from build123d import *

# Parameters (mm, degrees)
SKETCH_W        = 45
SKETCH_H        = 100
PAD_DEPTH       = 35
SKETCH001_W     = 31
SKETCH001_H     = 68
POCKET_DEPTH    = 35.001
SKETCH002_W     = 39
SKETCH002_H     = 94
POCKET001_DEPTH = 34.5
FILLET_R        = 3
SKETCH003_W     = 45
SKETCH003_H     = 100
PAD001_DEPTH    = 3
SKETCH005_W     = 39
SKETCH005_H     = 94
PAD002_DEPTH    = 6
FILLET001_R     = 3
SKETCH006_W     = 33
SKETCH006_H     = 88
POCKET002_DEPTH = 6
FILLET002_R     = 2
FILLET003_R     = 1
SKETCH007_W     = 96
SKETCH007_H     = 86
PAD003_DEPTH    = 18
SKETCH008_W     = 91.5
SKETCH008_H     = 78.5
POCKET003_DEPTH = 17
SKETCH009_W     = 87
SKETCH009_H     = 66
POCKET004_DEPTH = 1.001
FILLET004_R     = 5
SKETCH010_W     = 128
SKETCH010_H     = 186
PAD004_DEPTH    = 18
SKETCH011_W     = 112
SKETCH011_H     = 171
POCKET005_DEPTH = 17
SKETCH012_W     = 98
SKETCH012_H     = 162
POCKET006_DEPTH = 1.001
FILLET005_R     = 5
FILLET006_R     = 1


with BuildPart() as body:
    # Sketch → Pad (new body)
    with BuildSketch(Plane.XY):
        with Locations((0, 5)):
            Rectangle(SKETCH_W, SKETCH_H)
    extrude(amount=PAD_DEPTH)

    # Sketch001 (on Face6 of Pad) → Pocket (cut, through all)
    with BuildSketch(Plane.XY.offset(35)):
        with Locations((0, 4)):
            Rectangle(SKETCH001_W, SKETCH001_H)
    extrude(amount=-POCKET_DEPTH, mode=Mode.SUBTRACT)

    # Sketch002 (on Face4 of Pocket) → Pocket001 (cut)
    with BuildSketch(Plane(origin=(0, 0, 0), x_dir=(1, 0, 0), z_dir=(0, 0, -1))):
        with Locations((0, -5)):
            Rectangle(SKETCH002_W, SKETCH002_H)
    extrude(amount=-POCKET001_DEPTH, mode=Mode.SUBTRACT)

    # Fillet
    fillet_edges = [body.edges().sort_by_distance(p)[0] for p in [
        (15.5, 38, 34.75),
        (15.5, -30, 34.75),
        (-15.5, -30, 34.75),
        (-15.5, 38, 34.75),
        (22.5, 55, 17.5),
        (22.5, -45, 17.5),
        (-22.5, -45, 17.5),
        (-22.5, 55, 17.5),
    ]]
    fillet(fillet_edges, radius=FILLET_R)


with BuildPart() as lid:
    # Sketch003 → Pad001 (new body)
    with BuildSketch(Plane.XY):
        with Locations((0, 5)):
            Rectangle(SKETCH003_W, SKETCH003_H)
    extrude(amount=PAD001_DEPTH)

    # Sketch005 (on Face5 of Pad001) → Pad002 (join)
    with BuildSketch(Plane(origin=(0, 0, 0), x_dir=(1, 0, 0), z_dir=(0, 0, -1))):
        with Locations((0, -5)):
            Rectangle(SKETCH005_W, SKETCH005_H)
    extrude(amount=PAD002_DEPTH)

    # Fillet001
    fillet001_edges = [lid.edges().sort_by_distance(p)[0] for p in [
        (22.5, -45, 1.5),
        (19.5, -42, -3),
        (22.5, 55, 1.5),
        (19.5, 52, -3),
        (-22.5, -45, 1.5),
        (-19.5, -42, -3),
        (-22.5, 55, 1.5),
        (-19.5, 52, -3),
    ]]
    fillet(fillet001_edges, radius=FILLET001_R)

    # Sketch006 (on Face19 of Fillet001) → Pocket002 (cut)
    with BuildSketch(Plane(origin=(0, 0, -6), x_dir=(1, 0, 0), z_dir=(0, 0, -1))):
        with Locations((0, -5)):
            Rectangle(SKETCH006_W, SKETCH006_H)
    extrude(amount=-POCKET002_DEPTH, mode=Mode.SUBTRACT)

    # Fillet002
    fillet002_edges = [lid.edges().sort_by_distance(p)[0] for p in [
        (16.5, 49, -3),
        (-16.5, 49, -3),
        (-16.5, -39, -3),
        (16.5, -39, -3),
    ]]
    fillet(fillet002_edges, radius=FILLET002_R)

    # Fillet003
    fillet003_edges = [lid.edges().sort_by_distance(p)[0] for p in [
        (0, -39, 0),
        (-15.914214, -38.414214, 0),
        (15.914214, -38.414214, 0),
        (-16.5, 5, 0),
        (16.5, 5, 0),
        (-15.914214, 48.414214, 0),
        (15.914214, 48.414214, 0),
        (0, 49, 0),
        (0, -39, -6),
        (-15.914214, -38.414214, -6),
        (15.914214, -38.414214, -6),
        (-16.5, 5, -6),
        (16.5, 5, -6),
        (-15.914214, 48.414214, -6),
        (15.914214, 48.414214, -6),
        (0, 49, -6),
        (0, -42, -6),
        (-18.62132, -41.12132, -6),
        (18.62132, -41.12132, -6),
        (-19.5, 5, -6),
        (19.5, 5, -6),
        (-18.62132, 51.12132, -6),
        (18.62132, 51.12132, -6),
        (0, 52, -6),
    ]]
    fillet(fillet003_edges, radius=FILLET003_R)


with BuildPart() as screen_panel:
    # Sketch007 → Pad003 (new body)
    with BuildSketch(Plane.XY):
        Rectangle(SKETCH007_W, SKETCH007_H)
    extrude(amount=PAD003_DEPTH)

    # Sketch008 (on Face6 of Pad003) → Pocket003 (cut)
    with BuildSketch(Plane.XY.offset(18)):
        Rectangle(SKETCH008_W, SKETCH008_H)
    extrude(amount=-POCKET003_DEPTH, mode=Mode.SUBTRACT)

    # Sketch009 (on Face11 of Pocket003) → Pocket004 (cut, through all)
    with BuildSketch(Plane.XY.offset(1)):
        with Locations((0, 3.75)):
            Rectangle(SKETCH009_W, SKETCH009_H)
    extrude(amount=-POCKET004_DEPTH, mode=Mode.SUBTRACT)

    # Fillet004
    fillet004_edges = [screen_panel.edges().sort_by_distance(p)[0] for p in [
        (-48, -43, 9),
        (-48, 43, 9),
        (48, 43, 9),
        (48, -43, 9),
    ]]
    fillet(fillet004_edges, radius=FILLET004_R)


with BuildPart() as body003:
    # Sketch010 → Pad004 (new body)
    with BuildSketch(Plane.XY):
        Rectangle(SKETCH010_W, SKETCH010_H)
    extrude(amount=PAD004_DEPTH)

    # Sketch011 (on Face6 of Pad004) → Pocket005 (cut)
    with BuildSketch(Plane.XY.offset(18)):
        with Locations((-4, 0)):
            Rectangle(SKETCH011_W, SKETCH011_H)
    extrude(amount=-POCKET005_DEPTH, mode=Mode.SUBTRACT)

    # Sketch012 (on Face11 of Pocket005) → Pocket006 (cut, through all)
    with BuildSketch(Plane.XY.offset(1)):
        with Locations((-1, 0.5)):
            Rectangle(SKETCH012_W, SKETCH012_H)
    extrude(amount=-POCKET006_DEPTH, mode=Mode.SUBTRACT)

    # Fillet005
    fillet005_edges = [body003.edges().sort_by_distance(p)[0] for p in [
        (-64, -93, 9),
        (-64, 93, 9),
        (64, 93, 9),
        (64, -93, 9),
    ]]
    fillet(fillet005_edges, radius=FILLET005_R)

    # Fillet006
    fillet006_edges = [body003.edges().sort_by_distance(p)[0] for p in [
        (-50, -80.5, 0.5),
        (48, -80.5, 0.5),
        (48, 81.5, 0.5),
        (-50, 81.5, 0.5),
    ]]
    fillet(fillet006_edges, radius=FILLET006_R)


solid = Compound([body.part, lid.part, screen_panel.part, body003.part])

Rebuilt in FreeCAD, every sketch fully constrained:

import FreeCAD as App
import Part
import Sketcher
from FreeCAD import Vector
Q = App.Units.Quantity


def edges_at(feature, points):
    """Names of the edges that pass closest to the given points."""
    edges = feature.Shape.Edges
    near = lambda p: min(range(len(edges)), key=lambda i: edges[i].distToShape(Part.Vertex(*p))[0])
    return sorted({f"Edge{near(p) + 1}" for p in points})


def add_polygon(sketch, points):
    """Adds a closed chain of lines whose ends are joined by coincident constraints."""
    first, n = sketch.GeometryCount, len(points)
    for a, b in zip(points, points[1:] + points[:1]):
        sketch.addGeometry(Part.LineSegment(App.Vector(*a, 0), App.Vector(*b, 0)), False)
    for i in range(n):
        sketch.addConstraint(Sketcher.Constraint("Coincident", first + i, 2, first + (i + 1) % n, 1))

doc = App.newDocument("Part")
params = doc.addObject("Spreadsheet::Sheet", "Params")
for row, (alias, value) in enumerate([
    ("sketch1_width", "45 mm"),
    ("sketch1_height", "100 mm"),
    ("pad1_length", "35 mm"),
    ("sketch2_width", "31 mm"),
    ("sketch2_height", "68 mm"),
    ("sketch3_width", "39 mm"),
    ("sketch3_height", "94 mm"),
    ("pocket2_length", "34.5 mm"),
    ("fillet_radius", "3 mm"),
    ("sketch4_width", "45 mm"),
    ("sketch4_height", "100 mm"),
    ("pad2_length", "3 mm"),
    ("sketch5_width", "39 mm"),
    ("sketch5_height", "94 mm"),
    ("pad3_length", "6 mm"),
    ("fillet2_radius", "3 mm"),
    ("sketch6_width", "33 mm"),
    ("sketch6_height", "88 mm"),
    ("pocket3_length", "6 mm"),
    ("fillet3_radius", "2 mm"),
    ("fillet4_radius", "1 mm"),
    ("sketch7_width", "96 mm"),
    ("sketch7_height", "86 mm"),
    ("pad4_length", "18 mm"),
    ("sketch8_width", "91.5 mm"),
    ("sketch8_height", "78.5 mm"),
    ("pocket4_length", "17 mm"),
    ("sketch9_width", "87 mm"),
    ("sketch9_height", "66 mm"),
    ("fillet5_radius", "5 mm"),
    ("sketch10_width", "128 mm"),
    ("sketch10_height", "186 mm"),
    ("pad5_length", "18 mm"),
    ("sketch11_width", "112 mm"),
    ("sketch11_height", "171 mm"),
    ("pocket6_length", "17 mm"),
    ("sketch12_width", "98 mm"),
    ("sketch12_height", "162 mm"),
    ("fillet6_radius", "5 mm"),
    ("fillet7_radius", "1 mm"),
], start=1):
    params.set(f"A{row}", alias)
    params.set(f"B{row}", "=" + value)
    params.setAlias(f"B{row}", alias)

body = doc.addObject("PartDesign::Body", "Body")

sketch1 = body.newObject("Sketcher::SketchObject", "Sketch")
sketch1.AttachmentSupport = (doc.getObject("XY_Plane"), [""])
sketch1.MapMode = "FlatFace"
add_polygon(sketch1, [(-22, 55), (-22, -45), (22, -45), (22, 55)])
sketch1.addConstraint(Sketcher.Constraint("Vertical", 0))
sketch1.addConstraint(Sketcher.Constraint("Horizontal", 1))
sketch1.addConstraint(Sketcher.Constraint("Vertical", 2))
sketch1.addConstraint(Sketcher.Constraint("Horizontal", 3))
sketch1.addConstraint(Sketcher.Constraint("DistanceX", 1, 1, 1, 2, Q("45 mm")))
sketch1.addConstraint(Sketcher.Constraint("DistanceY", 0, 2, 0, 1, Q("100 mm")))
sketch1.addConstraint(Sketcher.Constraint("DistanceY", 0, 2, -1, 1, Q("45 mm")))
sketch1.addConstraint(Sketcher.Constraint("DistanceX", 0, 2, -1, 1, Q("22.5 mm")))
sketch1.setExpression("Constraints[8]", "Params.sketch1_width")
sketch1.setExpression("Constraints[9]", "Params.sketch1_height")
pad1 = body.newObject("PartDesign::Pad", "Pad")
pad1.Profile = sketch1
pad1.setExpression("Length", "Params.pad1_length")

sketch2 = body.newObject("Sketcher::SketchObject", "Sketch001")
sketch2.AttachmentSupport = (doc.getObject("XY_Plane"), [""])
sketch2.MapMode = "FlatFace"
sketch2.AttachmentOffset = App.Placement(Vector(0, 0, 35), App.Rotation())
add_polygon(sketch2, [(-16, 38), (-16, -30), (16, -30), (16, 38)])
sketch2.addConstraint(Sketcher.Constraint("Vertical", 0))
sketch2.addConstraint(Sketcher.Constraint("Horizontal", 1))
sketch2.addConstraint(Sketcher.Constraint("Vertical", 2))
sketch2.addConstraint(Sketcher.Constraint("Horizontal", 3))
sketch2.addConstraint(Sketcher.Constraint("DistanceX", 1, 1, 1, 2, Q("31 mm")))
sketch2.addConstraint(Sketcher.Constraint("DistanceY", 0, 2, 0, 1, Q("68 mm")))
sketch2.addConstraint(Sketcher.Constraint("DistanceY", 0, 2, -1, 1, Q("30 mm")))
sketch2.addConstraint(Sketcher.Constraint("DistanceX", 0, 2, -1, 1, Q("15.5 mm")))
sketch2.setExpression("Constraints[8]", "Params.sketch2_width")
sketch2.setExpression("Constraints[9]", "Params.sketch2_height")
pocket1 = body.newObject("PartDesign::Pocket", "Pocket")
pocket1.Profile = sketch2
pocket1.Type = "ThroughAll"

sketch3 = body.newObject("Sketcher::SketchObject", "Sketch002")
sketch3.AttachmentSupport = (doc.getObject("XY_Plane"), [""])
sketch3.MapMode = "FlatFace"
add_polygon(sketch3, [(-20, -42), (-20, 52), (20, 52), (20, -42)])
sketch3.addConstraint(Sketcher.Constraint("Vertical", 0))
sketch3.addConstraint(Sketcher.Constraint("Horizontal", 1))
sketch3.addConstraint(Sketcher.Constraint("Vertical", 2))
sketch3.addConstraint(Sketcher.Constraint("Horizontal", 3))
sketch3.addConstraint(Sketcher.Constraint("DistanceX", 1, 1, 1, 2, Q("39 mm")))
sketch3.addConstraint(Sketcher.Constraint("DistanceY", 0, 1, 0, 2, Q("94 mm")))
sketch3.addConstraint(Sketcher.Constraint("DistanceY", -1, 1, 0, 2, Q("52 mm")))
sketch3.addConstraint(Sketcher.Constraint("DistanceX", 0, 2, -1, 1, Q("19.5 mm")))
sketch3.setExpression("Constraints[8]", "Params.sketch3_width")
sketch3.setExpression("Constraints[9]", "Params.sketch3_height")
pocket2 = body.newObject("PartDesign::Pocket", "Pocket001")
pocket2.Profile = sketch3
pocket2.setExpression("Length", "Params.pocket2_length")
pocket2.Reversed = True
doc.recompute()

fillet = body.newObject("PartDesign::Fillet", "Fillet")
fillet.Base = (pocket2, edges_at(pocket2, [
    (15.5, 38, 34.75),
    (15.5, -30, 34.75),
    (-15.5, -30, 34.75),
    (-15.5, 38, 34.75),
    (22.5, 55, 17.5),
    (22.5, -45, 17.5),
    (-22.5, -45, 17.5),
    (-22.5, 55, 17.5),
]))
fillet.setExpression("Radius", "Params.fillet_radius")
body2 = doc.addObject("PartDesign::Body", "Body001")

sketch4 = body2.newObject("Sketcher::SketchObject", "Sketch003")
sketch4.AttachmentSupport = (doc.getObject("XY_Plane001"), [""])
sketch4.MapMode = "FlatFace"
add_polygon(sketch4, [(-22, 55), (-22, -45), (22, -45), (22, 55)])
sketch4.addConstraint(Sketcher.Constraint("Vertical", 0))
sketch4.addConstraint(Sketcher.Constraint("Horizontal", 1))
sketch4.addConstraint(Sketcher.Constraint("Vertical", 2))
sketch4.addConstraint(Sketcher.Constraint("Horizontal", 3))
sketch4.addConstraint(Sketcher.Constraint("DistanceX", 1, 1, 1, 2, Q("45 mm")))
sketch4.addConstraint(Sketcher.Constraint("DistanceY", 0, 2, 0, 1, Q("100 mm")))
sketch4.addConstraint(Sketcher.Constraint("DistanceY", 0, 2, -1, 1, Q("45 mm")))
sketch4.addConstraint(Sketcher.Constraint("DistanceX", 0, 2, -1, 1, Q("22.5 mm")))
sketch4.setExpression("Constraints[8]", "Params.sketch4_width")
sketch4.setExpression("Constraints[9]", "Params.sketch4_height")
pad2 = body2.newObject("PartDesign::Pad", "Pad001")
pad2.Profile = sketch4
pad2.setExpression("Length", "Params.pad2_length")

sketch5 = body2.newObject("Sketcher::SketchObject", "Sketch004")
sketch5.AttachmentSupport = (doc.getObject("XY_Plane001"), [""])
sketch5.MapMode = "FlatFace"
add_polygon(sketch5, [(-20, -42), (-20, 52), (20, 52), (20, -42)])
sketch5.addConstraint(Sketcher.Constraint("Vertical", 0))
sketch5.addConstraint(Sketcher.Constraint("Horizontal", 1))
sketch5.addConstraint(Sketcher.Constraint("Vertical", 2))
sketch5.addConstraint(Sketcher.Constraint("Horizontal", 3))
sketch5.addConstraint(Sketcher.Constraint("DistanceX", 1, 1, 1, 2, Q("39 mm")))
sketch5.addConstraint(Sketcher.Constraint("DistanceY", 0, 1, 0, 2, Q("94 mm")))
sketch5.addConstraint(Sketcher.Constraint("DistanceY", -1, 1, 0, 2, Q("52 mm")))
sketch5.addConstraint(Sketcher.Constraint("DistanceX", 0, 2, -1, 1, Q("19.5 mm")))
sketch5.setExpression("Constraints[8]", "Params.sketch5_width")
sketch5.setExpression("Constraints[9]", "Params.sketch5_height")
pad3 = body2.newObject("PartDesign::Pad", "Pad002")
pad3.Profile = sketch5
pad3.setExpression("Length", "Params.pad3_length")
pad3.Reversed = True
doc.recompute()

fillet2 = body2.newObject("PartDesign::Fillet", "Fillet001")
fillet2.Base = (pad3, edges_at(pad3, [
    (22.5, -45, 1.5),
    (19.5, -42, -3),
    (22.5, 55, 1.5),
    (19.5, 52, -3),
    (-22.5, -45, 1.5),
    (-19.5, -42, -3),
    (-22.5, 55, 1.5),
    (-19.5, 52, -3),
]))
fillet2.setExpression("Radius", "Params.fillet2_radius")

sketch6 = body2.newObject("Sketcher::SketchObject", "Sketch005")
sketch6.AttachmentSupport = (doc.getObject("XY_Plane001"), [""])
sketch6.MapMode = "FlatFace"
sketch6.AttachmentOffset = App.Placement(Vector(0, 0, -6), App.Rotation())
add_polygon(sketch6, [(-16, -39), (-16, 49), (16, 49), (16, -39)])
sketch6.addConstraint(Sketcher.Constraint("Vertical", 0))
sketch6.addConstraint(Sketcher.Constraint("Horizontal", 1))
sketch6.addConstraint(Sketcher.Constraint("Vertical", 2))
sketch6.addConstraint(Sketcher.Constraint("Horizontal", 3))
sketch6.addConstraint(Sketcher.Constraint("DistanceX", 1, 1, 1, 2, Q("33 mm")))
sketch6.addConstraint(Sketcher.Constraint("DistanceY", 0, 1, 0, 2, Q("88 mm")))
sketch6.addConstraint(Sketcher.Constraint("DistanceY", -1, 1, 0, 2, Q("49 mm")))
sketch6.addConstraint(Sketcher.Constraint("DistanceX", 0, 2, -1, 1, Q("16.5 mm")))
sketch6.setExpression("Constraints[8]", "Params.sketch6_width")
sketch6.setExpression("Constraints[9]", "Params.sketch6_height")
pocket3 = body2.newObject("PartDesign::Pocket", "Pocket002")
pocket3.Profile = sketch6
pocket3.setExpression("Length", "Params.pocket3_length")
pocket3.Reversed = True
doc.recompute()

fillet3 = body2.newObject("PartDesign::Fillet", "Fillet002")
fillet3.Base = (pocket3, edges_at(pocket3, [
    (16.5, 49, -3),
    (-16.5, 49, -3),
    (-16.5, -39, -3),
    (16.5, -39, -3),
]))
fillet3.setExpression("Radius", "Params.fillet3_radius")
doc.recompute()

fillet4 = body2.newObject("PartDesign::Fillet", "Fillet003")
fillet4.Base = (fillet3, edges_at(fillet3, [
    (0, -39, 0),
    (-15.914, -38.414, 0),
    (15.914, -38.414, 0),
    (-16.5, 5, 0),
    (16.5, 5, 0),
    (-15.914, 48.414, 0),
    (15.914, 48.414, 0),
    (0, 49, 0),
    (0, -39, -6),
    (-15.914, -38.414, -6),
    (15.914, -38.414, -6),
    (-16.5, 5, -6),
    (16.5, 5, -6),
    (-15.914, 48.414, -6),
    (15.914, 48.414, -6),
    (0, 49, -6),
    (0, -42, -6),
    (-18.621, -41.121, -6),
    (18.621, -41.121, -6),
    (-19.5, 5, -6),
    (19.5, 5, -6),
    (-18.621, 51.121, -6),
    (18.621, 51.121, -6),
    (0, 52, -6),
]))
fillet4.setExpression("Radius", "Params.fillet4_radius")
body3 = doc.addObject("PartDesign::Body", "Body002")

sketch7 = body3.newObject("Sketcher::SketchObject", "Sketch006")
sketch7.AttachmentSupport = (doc.getObject("XY_Plane002"), [""])
sketch7.MapMode = "FlatFace"
add_polygon(sketch7, [(-48, 43), (-48, -43), (48, -43), (48, 43)])
sketch7.addConstraint(Sketcher.Constraint("Vertical", 0))
sketch7.addConstraint(Sketcher.Constraint("Horizontal", 1))
sketch7.addConstraint(Sketcher.Constraint("Vertical", 2))
sketch7.addConstraint(Sketcher.Constraint("Horizontal", 3))
sketch7.addConstraint(Sketcher.Constraint("Symmetric", 0, 2, 2, 2, -1, 1))
sketch7.addConstraint(Sketcher.Constraint("DistanceX", 1, 1, 1, 2, Q("96 mm")))
sketch7.addConstraint(Sketcher.Constraint("DistanceY", 0, 2, 0, 1, Q("86 mm")))
sketch7.setExpression("Constraints[9]", "Params.sketch7_width")
sketch7.setExpression("Constraints[10]", "Params.sketch7_height")
pad4 = body3.newObject("PartDesign::Pad", "Pad003")
pad4.Profile = sketch7
pad4.setExpression("Length", "Params.pad4_length")

sketch8 = body3.newObject("Sketcher::SketchObject", "Sketch007")
sketch8.AttachmentSupport = (doc.getObject("XY_Plane002"), [""])
sketch8.MapMode = "FlatFace"
sketch8.AttachmentOffset = App.Placement(Vector(0, 0, 18), App.Rotation())
add_polygon(sketch8, [(-46, 39), (-46, -39), (46, -39), (46, 39)])
sketch8.addConstraint(Sketcher.Constraint("Vertical", 0))
sketch8.addConstraint(Sketcher.Constraint("Horizontal", 1))
sketch8.addConstraint(Sketcher.Constraint("Vertical", 2))
sketch8.addConstraint(Sketcher.Constraint("Horizontal", 3))
sketch8.addConstraint(Sketcher.Constraint("Symmetric", 0, 2, 2, 2, -1, 1))
sketch8.addConstraint(Sketcher.Constraint("DistanceX", 1, 1, 1, 2, Q("91.5 mm")))
sketch8.addConstraint(Sketcher.Constraint("DistanceY", 0, 2, 0, 1, Q("78.5 mm")))
sketch8.setExpression("Constraints[9]", "Params.sketch8_width")
sketch8.setExpression("Constraints[10]", "Params.sketch8_height")
pocket4 = body3.newObject("PartDesign::Pocket", "Pocket003")
pocket4.Profile = sketch8
pocket4.setExpression("Length", "Params.pocket4_length")

sketch9 = body3.newObject("Sketcher::SketchObject", "Sketch008")
sketch9.AttachmentSupport = (doc.getObject("XY_Plane002"), [""])
sketch9.MapMode = "FlatFace"
sketch9.AttachmentOffset = App.Placement(Vector(0, 0, 1), App.Rotation())
add_polygon(sketch9, [(-44, 37), (-44, -29), (44, -29), (44, 37)])
sketch9.addConstraint(Sketcher.Constraint("Vertical", 0))
sketch9.addConstraint(Sketcher.Constraint("Horizontal", 1))
sketch9.addConstraint(Sketcher.Constraint("Vertical", 2))
sketch9.addConstraint(Sketcher.Constraint("Horizontal", 3))
sketch9.addConstraint(Sketcher.Constraint("DistanceX", 1, 1, 1, 2, Q("87 mm")))
sketch9.addConstraint(Sketcher.Constraint("DistanceY", 0, 2, 0, 1, Q("66 mm")))
sketch9.addConstraint(Sketcher.Constraint("DistanceX", 0, 2, -1, 1, Q("43.5 mm")))
sketch9.addConstraint(Sketcher.Constraint("DistanceY", 0, 2, -1, 1, Q("29.25 mm")))
sketch9.setExpression("Constraints[8]", "Params.sketch9_width")
sketch9.setExpression("Constraints[9]", "Params.sketch9_height")
pocket5 = body3.newObject("PartDesign::Pocket", "Pocket004")
pocket5.Profile = sketch9
pocket5.Type = "ThroughAll"
doc.recompute()

fillet5 = body3.newObject("PartDesign::Fillet", "Fillet004")
fillet5.Base = (pocket5, edges_at(pocket5, [
    (-48, -43, 9),
    (-48, 43, 9),
    (48, 43, 9),
    (48, -43, 9),
]))
fillet5.setExpression("Radius", "Params.fillet5_radius")
body4 = doc.addObject("PartDesign::Body", "Body003")

sketch10 = body4.newObject("Sketcher::SketchObject", "Sketch009")
sketch10.AttachmentSupport = (doc.getObject("XY_Plane003"), [""])
sketch10.MapMode = "FlatFace"
add_polygon(sketch10, [(-64, 93), (-64, -93), (64, -93), (64, 93)])
sketch10.addConstraint(Sketcher.Constraint("Vertical", 0))
sketch10.addConstraint(Sketcher.Constraint("Horizontal", 1))
sketch10.addConstraint(Sketcher.Constraint("Vertical", 2))
sketch10.addConstraint(Sketcher.Constraint("Horizontal", 3))
sketch10.addConstraint(Sketcher.Constraint("Symmetric", 0, 2, 2, 2, -1, 1))
sketch10.addConstraint(Sketcher.Constraint("DistanceX", 1, 1, 1, 2, Q("128 mm")))
sketch10.addConstraint(Sketcher.Constraint("DistanceY", 0, 2, 0, 1, Q("186 mm")))
sketch10.setExpression("Constraints[9]", "Params.sketch10_width")
sketch10.setExpression("Constraints[10]", "Params.sketch10_height")
pad5 = body4.newObject("PartDesign::Pad", "Pad004")
pad5.Profile = sketch10
pad5.setExpression("Length", "Params.pad5_length")

sketch11 = body4.newObject("Sketcher::SketchObject", "Sketch010")
sketch11.AttachmentSupport = (doc.getObject("XY_Plane003"), [""])
sketch11.MapMode = "FlatFace"
sketch11.AttachmentOffset = App.Placement(Vector(0, 0, 18), App.Rotation())
add_polygon(sketch11, [(-60, 86), (-60, -86), (52, -86), (52, 86)])
sketch11.addConstraint(Sketcher.Constraint("Vertical", 0))
sketch11.addConstraint(Sketcher.Constraint("Horizontal", 1))
sketch11.addConstraint(Sketcher.Constraint("Vertical", 2))
sketch11.addConstraint(Sketcher.Constraint("Horizontal", 3))
sketch11.addConstraint(Sketcher.Constraint("DistanceX", 1, 1, 1, 2, Q("112 mm")))
sketch11.addConstraint(Sketcher.Constraint("DistanceY", 0, 2, 0, 1, Q("171 mm")))
sketch11.addConstraint(Sketcher.Constraint("DistanceX", 0, 2, -1, 1, Q("60 mm")))
sketch11.addConstraint(Sketcher.Constraint("DistanceY", 0, 2, -1, 1, Q("85.5 mm")))
sketch11.setExpression("Constraints[8]", "Params.sketch11_width")
sketch11.setExpression("Constraints[9]", "Params.sketch11_height")
pocket6 = body4.newObject("PartDesign::Pocket", "Pocket005")
pocket6.Profile = sketch11
pocket6.setExpression("Length", "Params.pocket6_length")

sketch12 = body4.newObject("Sketcher::SketchObject", "Sketch011")
sketch12.AttachmentSupport = (doc.getObject("XY_Plane003"), [""])
sketch12.MapMode = "FlatFace"
sketch12.AttachmentOffset = App.Placement(Vector(0, 0, 1), App.Rotation())
add_polygon(sketch12, [(-50, 82), (-50, -80), (48, -80), (48, 82)])
sketch12.addConstraint(Sketcher.Constraint("Vertical", 0))
sketch12.addConstraint(Sketcher.Constraint("Horizontal", 1))
sketch12.addConstraint(Sketcher.Constraint("Vertical", 2))
sketch12.addConstraint(Sketcher.Constraint("Horizontal", 3))
sketch12.addConstraint(Sketcher.Constraint("DistanceX", 1, 1, 1, 2, Q("98 mm")))
sketch12.addConstraint(Sketcher.Constraint("DistanceY", 0, 2, 0, 1, Q("162 mm")))
sketch12.addConstraint(Sketcher.Constraint("DistanceX", 0, 2, -1, 1, Q("50 mm")))
sketch12.addConstraint(Sketcher.Constraint("DistanceY", 0, 2, -1, 1, Q("80.5 mm")))
sketch12.setExpression("Constraints[8]", "Params.sketch12_width")
sketch12.setExpression("Constraints[9]", "Params.sketch12_height")
pocket7 = body4.newObject("PartDesign::Pocket", "Pocket006")
pocket7.Profile = sketch12
pocket7.Type = "ThroughAll"
doc.recompute()

fillet6 = body4.newObject("PartDesign::Fillet", "Fillet005")
fillet6.Base = (pocket7, edges_at(pocket7, [
    (-64, -93, 9),
    (-64, 93, 9),
    (64, 93, 9),
    (64, -93, 9),
]))
fillet6.setExpression("Radius", "Params.fillet6_radius")
doc.recompute()

fillet7 = body4.newObject("PartDesign::Fillet", "Fillet006")
fillet7.Base = (fillet6, edges_at(fillet6, [
    (-50, -80.5, 0.5),
    (48, -80.5, 0.5),
    (48, 81.5, 0.5),
    (-50, 81.5, 0.5),
]))
fillet7.setExpression("Radius", "Params.fillet7_radius")

doc.recompute()
